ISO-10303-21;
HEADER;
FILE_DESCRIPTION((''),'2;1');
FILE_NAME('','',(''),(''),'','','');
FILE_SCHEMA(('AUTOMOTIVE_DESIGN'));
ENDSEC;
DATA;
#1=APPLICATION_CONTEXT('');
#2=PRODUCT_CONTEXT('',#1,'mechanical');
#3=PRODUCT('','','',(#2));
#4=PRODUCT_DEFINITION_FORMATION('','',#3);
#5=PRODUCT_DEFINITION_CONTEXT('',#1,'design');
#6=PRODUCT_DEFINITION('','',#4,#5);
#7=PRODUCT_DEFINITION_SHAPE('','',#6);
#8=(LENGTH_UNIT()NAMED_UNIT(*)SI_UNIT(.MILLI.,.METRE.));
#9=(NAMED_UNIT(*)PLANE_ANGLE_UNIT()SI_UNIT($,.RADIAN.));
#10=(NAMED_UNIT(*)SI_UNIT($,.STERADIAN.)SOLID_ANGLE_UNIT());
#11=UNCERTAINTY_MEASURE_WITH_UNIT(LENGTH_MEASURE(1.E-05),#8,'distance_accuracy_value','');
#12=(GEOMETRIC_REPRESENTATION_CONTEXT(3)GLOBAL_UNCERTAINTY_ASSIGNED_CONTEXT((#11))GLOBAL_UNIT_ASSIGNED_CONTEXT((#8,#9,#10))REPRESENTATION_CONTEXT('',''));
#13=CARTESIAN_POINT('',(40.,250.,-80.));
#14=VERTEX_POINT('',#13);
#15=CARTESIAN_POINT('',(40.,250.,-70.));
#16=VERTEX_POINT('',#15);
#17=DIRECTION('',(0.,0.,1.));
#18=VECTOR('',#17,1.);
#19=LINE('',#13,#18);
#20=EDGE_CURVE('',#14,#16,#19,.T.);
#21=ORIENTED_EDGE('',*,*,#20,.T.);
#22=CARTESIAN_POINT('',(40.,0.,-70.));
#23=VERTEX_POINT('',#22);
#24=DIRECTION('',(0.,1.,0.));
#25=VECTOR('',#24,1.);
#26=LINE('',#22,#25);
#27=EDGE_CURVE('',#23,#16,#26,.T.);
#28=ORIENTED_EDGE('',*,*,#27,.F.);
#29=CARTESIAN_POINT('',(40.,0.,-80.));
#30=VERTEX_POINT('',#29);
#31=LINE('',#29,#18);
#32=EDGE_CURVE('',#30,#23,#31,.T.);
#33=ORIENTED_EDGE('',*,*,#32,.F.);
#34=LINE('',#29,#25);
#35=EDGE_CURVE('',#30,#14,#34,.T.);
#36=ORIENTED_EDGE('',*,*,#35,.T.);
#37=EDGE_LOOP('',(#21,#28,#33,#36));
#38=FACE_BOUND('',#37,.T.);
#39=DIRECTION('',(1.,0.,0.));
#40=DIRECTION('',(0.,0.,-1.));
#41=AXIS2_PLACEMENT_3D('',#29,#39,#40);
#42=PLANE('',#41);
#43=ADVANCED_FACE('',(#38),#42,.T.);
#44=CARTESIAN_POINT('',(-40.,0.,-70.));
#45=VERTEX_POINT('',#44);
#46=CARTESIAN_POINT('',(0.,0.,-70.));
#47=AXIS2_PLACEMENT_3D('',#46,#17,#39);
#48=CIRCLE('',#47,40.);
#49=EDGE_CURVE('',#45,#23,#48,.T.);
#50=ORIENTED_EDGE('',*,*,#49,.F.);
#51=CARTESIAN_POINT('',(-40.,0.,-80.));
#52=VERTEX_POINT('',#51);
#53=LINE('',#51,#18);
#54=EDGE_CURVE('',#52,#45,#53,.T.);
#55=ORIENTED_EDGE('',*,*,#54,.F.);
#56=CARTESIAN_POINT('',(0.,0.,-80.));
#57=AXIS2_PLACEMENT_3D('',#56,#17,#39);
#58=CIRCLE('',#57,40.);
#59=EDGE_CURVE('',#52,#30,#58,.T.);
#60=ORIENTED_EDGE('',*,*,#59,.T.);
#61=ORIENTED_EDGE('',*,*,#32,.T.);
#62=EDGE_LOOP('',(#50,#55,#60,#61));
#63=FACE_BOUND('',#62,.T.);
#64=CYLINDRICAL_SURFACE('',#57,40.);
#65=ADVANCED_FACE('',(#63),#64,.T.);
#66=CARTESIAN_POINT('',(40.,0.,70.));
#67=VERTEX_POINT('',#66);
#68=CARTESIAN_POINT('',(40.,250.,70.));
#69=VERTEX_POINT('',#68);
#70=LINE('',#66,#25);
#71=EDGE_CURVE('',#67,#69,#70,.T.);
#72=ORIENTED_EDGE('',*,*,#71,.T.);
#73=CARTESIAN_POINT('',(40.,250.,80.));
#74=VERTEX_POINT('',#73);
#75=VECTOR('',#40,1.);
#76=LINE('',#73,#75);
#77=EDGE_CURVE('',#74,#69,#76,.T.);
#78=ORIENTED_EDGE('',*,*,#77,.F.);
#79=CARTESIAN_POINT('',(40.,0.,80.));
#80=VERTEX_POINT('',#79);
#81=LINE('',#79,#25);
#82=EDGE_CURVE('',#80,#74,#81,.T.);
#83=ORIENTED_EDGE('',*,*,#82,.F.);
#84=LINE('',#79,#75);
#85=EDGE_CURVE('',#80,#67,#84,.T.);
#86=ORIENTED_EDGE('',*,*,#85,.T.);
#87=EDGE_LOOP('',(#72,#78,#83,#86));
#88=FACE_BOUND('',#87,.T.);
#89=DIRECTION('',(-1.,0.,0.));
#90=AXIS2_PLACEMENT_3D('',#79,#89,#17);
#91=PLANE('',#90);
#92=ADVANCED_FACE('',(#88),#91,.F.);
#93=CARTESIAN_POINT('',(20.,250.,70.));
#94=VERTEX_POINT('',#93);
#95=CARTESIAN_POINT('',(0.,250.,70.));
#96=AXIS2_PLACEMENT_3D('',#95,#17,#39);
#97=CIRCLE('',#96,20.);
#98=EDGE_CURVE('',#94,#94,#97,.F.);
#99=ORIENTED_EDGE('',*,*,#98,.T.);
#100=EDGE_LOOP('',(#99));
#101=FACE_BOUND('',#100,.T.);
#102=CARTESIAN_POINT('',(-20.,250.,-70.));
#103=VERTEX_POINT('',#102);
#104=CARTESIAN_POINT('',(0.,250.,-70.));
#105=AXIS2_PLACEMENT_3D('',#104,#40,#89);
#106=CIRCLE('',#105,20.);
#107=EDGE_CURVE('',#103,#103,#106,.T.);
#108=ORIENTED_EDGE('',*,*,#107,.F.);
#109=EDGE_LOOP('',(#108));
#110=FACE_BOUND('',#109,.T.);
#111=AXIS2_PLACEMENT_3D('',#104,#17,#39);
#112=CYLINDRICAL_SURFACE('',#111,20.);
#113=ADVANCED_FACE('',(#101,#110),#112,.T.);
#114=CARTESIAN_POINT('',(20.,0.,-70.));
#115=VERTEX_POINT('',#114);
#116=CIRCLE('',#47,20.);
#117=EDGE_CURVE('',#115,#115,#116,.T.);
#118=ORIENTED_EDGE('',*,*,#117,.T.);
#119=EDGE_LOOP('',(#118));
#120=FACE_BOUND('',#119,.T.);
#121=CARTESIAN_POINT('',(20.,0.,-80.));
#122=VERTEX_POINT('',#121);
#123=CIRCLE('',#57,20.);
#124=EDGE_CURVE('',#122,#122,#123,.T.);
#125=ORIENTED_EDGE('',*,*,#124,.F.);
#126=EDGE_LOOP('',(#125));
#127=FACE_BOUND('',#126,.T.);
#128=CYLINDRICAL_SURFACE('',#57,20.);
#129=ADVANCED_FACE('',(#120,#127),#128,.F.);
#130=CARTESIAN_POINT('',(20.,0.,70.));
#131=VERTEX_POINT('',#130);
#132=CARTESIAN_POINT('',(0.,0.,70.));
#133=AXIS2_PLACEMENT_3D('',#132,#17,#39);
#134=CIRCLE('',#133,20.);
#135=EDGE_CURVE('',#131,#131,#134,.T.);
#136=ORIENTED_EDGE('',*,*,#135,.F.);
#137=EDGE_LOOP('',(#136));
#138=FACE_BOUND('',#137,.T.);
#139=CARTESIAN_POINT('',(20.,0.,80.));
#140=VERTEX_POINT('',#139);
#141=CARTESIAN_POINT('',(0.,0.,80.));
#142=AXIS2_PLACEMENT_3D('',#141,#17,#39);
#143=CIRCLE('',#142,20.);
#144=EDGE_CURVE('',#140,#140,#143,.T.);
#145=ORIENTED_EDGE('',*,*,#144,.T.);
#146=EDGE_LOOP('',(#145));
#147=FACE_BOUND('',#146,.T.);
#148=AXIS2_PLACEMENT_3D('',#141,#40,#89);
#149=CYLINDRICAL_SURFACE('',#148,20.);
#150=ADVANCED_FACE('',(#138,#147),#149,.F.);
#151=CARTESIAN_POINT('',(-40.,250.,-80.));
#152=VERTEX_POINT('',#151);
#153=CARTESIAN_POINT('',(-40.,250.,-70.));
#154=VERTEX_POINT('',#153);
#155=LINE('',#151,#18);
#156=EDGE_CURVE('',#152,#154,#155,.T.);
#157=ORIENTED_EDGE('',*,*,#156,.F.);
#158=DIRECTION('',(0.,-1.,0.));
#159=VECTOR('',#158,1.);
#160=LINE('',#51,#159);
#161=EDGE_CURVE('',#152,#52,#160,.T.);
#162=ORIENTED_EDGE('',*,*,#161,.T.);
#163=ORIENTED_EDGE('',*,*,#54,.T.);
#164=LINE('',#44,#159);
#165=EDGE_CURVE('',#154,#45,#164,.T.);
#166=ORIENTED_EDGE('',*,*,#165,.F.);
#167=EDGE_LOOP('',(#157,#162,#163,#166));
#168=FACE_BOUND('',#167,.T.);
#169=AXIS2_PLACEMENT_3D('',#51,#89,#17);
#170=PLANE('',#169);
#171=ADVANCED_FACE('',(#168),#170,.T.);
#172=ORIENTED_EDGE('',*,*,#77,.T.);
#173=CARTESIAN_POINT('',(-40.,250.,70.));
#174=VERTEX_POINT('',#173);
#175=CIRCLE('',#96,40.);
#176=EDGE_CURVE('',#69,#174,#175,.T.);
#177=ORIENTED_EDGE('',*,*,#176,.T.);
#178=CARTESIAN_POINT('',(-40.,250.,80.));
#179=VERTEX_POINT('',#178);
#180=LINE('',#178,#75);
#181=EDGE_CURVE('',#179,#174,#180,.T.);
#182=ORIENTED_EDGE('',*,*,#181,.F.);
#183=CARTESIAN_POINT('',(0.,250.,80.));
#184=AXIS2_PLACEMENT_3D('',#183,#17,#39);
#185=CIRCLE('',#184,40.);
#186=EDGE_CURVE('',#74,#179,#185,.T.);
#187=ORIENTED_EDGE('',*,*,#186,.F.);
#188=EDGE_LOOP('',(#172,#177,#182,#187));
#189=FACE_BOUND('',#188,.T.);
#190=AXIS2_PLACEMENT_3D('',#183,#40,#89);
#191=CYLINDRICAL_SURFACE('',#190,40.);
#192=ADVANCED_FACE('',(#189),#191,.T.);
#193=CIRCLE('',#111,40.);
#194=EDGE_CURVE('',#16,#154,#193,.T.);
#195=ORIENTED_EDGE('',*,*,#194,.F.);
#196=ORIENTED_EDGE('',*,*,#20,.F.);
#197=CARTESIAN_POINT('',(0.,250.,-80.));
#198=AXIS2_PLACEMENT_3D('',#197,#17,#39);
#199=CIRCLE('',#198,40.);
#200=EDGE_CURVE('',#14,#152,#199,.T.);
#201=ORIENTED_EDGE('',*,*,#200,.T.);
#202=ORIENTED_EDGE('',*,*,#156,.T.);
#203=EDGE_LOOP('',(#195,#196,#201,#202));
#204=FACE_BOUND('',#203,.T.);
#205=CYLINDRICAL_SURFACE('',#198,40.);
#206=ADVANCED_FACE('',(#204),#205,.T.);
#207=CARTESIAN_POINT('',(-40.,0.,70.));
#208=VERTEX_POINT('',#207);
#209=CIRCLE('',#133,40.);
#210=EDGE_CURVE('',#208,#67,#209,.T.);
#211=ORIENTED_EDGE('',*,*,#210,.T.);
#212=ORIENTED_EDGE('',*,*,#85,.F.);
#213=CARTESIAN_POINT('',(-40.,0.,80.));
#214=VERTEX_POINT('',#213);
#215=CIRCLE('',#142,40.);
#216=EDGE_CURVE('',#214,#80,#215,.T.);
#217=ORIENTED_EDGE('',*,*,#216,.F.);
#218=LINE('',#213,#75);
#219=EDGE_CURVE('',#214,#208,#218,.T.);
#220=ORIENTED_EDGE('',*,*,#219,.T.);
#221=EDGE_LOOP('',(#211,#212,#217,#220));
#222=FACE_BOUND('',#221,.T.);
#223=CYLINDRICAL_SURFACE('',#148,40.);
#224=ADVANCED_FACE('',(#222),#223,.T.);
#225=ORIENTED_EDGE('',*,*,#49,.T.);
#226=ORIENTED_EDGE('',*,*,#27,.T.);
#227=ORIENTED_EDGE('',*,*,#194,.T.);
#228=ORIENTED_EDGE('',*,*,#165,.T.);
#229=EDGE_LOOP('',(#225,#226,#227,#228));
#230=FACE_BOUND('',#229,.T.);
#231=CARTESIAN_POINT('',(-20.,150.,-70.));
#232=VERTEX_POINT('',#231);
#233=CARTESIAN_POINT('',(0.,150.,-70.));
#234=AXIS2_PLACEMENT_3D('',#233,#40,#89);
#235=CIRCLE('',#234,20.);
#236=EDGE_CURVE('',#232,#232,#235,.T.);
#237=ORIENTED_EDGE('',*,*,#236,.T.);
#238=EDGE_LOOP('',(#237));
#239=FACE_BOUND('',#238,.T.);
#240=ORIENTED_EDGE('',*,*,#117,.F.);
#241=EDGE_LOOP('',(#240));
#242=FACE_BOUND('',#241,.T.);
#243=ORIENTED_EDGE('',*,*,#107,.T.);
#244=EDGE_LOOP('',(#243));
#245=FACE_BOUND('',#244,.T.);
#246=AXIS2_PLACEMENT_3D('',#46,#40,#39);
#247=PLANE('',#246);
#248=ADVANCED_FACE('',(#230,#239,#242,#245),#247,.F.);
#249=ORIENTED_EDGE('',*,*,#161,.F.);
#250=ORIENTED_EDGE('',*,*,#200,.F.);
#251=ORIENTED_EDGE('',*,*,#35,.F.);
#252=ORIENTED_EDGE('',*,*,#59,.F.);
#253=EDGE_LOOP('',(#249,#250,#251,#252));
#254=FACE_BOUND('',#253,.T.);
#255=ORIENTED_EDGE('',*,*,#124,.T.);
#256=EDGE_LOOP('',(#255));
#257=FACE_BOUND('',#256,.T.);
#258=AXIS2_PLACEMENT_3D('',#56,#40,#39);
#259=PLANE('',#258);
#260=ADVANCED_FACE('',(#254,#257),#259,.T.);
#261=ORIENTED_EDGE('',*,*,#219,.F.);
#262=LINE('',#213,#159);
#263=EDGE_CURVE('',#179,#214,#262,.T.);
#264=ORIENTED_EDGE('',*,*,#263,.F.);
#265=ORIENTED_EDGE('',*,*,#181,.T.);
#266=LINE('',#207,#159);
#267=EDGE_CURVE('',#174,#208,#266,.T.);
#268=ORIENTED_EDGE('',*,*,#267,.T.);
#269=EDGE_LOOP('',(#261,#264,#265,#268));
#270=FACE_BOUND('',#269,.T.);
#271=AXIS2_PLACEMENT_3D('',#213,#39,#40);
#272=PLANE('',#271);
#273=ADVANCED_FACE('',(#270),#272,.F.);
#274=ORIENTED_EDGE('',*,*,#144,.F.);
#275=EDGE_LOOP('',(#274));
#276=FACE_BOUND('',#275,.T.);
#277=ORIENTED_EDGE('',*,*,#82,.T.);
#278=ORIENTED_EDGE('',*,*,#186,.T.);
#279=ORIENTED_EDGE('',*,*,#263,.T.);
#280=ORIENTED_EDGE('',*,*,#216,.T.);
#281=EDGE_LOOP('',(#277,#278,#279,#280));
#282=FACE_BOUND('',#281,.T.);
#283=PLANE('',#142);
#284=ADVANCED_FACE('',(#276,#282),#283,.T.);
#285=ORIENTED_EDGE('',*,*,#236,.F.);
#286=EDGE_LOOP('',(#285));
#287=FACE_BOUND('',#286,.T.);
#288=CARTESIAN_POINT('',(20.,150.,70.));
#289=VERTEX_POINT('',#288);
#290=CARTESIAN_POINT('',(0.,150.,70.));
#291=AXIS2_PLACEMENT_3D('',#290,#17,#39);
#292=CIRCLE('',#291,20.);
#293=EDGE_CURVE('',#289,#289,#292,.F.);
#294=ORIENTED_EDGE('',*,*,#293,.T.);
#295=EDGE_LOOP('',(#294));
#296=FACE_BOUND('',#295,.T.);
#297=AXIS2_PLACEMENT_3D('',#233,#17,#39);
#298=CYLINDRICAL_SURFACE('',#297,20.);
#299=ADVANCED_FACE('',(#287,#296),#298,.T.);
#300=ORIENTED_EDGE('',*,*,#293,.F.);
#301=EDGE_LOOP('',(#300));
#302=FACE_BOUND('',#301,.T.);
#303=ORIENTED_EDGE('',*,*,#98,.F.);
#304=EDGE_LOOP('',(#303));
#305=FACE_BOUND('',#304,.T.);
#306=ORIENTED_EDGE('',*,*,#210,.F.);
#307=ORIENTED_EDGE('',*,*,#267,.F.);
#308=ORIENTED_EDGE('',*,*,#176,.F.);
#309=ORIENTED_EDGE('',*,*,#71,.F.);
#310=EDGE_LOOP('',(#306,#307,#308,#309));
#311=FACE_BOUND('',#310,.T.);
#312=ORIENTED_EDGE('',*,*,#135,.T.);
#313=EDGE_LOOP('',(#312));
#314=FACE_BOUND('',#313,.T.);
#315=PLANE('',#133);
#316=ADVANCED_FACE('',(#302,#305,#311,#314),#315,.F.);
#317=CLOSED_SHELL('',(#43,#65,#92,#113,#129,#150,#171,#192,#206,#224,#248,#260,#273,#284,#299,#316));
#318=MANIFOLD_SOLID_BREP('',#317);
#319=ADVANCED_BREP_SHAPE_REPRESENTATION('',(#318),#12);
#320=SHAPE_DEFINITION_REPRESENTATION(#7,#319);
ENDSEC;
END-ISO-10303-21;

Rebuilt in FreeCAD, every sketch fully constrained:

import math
import FreeCAD as App
import Part
import Sketcher

V = App.Vector

doc = App.newDocument("Part")
body = doc.addObject("PartDesign::Body", "Body")

# Sketch on XY plane
sketch1 = body.newObject("Sketcher::SketchObject", "Sketch")
sketch1.AttachmentSupport = (doc.getObject("XY_Plane"), [""])
sketch1.MapMode = "FlatFace"
sketch1.AttachmentOffset = App.Placement(V(0, 0, 75), App.Rotation())
sketch1.addGeometry(Part.LineSegment(V(-40, 250, 0), V(-40, 0, 0)), False)
sketch1.addGeometry(Part.ArcOfCircle(Part.Circle(V(0, 0, 0), V(0, 0, 1), 40), math.radians(180), math.radians(360)), False)
sketch1.addGeometry(Part.LineSegment(V(40, 0, 0), V(40, 250, 0)), False)
sketch1.addGeometry(Part.ArcOfCircle(Part.Circle(V(0, 250, 0), V(0, 0, 1), 40), math.radians(0), math.radians(180)), False)
sketch1.addGeometry(Part.Circle(V(0, 0, 0), V(0, 0, 1), 20), False)
sketch1.addConstraint(Sketcher.Constraint("Tangent", 0, 2, 1, 1))
sketch1.addConstraint(Sketcher.Constraint("Tangent", 1, 2, 2, 1))
sketch1.addConstraint(Sketcher.Constraint("Tangent", 2, 2, 3, 1))
sketch1.addConstraint(Sketcher.Constraint("Tangent", 3, 2, 0, 1))
sketch1.addConstraint(Sketcher.Constraint("Vertical", 0))
sketch1.addConstraint(Sketcher.Constraint("Vertical", 2))
sketch1.addConstraint(Sketcher.Constraint("Coincident", 1, 3, -1, 1))
sketch1.addConstraint(Sketcher.Constraint("Coincident", 4, 3, -1, 1))
sketch1.addConstraint(Sketcher.Constraint("Diameter", 4, 40.0))
sketch1.addConstraint(Sketcher.Constraint("Radius", 1, 40.0))
sketch1.addConstraint(Sketcher.Constraint("DistanceY", 0, 2, 0, 1, 250.0))
pad1 = body.newObject("PartDesign::Pad", "Pad")
pad1.Profile = sketch1
pad1.Length = 10
pad1.Midplane = True

# Sketch on XY plane
sketch2 = body.newObject("Sketcher::SketchObject", "Sketch001")
sketch2.AttachmentSupport = (doc.getObject("XY_Plane"), [""])
sketch2.MapMode = "FlatFace"
sketch2.AttachmentOffset = App.Placement(V(0, 0, 70), App.Rotation())
sketch2.addGeometry(Part.Circle(V(0, 250, 0), V(0, 0, 1), 20), False)
sketch2.addGeometry(Part.Circle(V(0, 150, 0), V(0, 0, 1), 20), False)
sketch2.addConstraint(Sketcher.Constraint("Equal", 0, 1))
sketch2.addConstraint(Sketcher.Constraint("PointOnObject", 0, 3, -2))
sketch2.addConstraint(Sketcher.Constraint("PointOnObject", 1, 3, -2))
sketch2.addConstraint(Sketcher.Constraint("Diameter", 0, 40.0))
sketch2.addConstraint(Sketcher.Constraint("DistanceY", -1, 1, 0, 3, 250.0))
sketch2.addConstraint(Sketcher.Constraint("DistanceY", -1, 1, 1, 3, 150.0))
pad2 = body.newObject("PartDesign::Pad", "Pad001")
pad2.Profile = sketch2
pad2.Length = 140
pad2.Reversed = True
doc.recompute()

mirrored = body.newObject("PartDesign::Mirrored", "Mirrored")
mirrored.Originals = [pad1]
mirrored.MirrorPlane = (doc.getObject("XY_Plane"), [""])
body.Tip = mirrored

doc.recompute()
